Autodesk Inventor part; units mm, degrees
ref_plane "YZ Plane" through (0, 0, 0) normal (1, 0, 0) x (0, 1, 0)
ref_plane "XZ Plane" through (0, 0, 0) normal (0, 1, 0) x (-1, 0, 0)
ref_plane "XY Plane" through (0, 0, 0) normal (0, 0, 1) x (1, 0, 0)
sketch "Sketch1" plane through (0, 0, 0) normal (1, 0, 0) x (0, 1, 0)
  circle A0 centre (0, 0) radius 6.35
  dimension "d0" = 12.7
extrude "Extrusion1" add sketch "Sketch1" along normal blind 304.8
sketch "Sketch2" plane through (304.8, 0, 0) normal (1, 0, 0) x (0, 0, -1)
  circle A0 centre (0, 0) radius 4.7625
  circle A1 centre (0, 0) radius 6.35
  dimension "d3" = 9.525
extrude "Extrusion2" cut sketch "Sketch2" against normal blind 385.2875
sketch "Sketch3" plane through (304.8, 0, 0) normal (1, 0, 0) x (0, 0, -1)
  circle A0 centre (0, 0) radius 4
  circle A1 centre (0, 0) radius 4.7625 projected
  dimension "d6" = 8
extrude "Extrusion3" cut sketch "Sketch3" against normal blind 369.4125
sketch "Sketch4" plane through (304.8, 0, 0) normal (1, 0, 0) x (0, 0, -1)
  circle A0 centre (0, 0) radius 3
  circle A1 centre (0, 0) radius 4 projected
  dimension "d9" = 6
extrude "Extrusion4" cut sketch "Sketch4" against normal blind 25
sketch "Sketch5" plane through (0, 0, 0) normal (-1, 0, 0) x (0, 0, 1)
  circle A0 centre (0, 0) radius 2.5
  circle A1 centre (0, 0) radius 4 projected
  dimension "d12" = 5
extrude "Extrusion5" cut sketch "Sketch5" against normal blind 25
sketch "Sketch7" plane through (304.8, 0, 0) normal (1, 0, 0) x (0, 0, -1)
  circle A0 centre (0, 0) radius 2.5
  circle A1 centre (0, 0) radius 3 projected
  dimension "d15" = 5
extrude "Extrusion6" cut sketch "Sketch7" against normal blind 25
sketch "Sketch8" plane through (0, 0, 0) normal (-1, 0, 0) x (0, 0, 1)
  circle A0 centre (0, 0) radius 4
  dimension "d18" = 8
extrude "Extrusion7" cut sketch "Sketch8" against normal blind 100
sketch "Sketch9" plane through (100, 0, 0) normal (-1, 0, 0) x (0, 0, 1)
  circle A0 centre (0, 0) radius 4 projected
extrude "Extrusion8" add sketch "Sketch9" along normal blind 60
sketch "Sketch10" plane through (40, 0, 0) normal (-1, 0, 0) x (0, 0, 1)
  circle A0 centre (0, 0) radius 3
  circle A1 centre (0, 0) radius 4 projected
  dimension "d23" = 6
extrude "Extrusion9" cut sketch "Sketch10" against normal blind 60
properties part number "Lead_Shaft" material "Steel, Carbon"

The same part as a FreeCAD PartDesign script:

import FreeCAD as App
import Part
import Sketcher

doc = App.newDocument("Part")
body = doc.addObject("PartDesign::Body", "Body")

# Sketch on YZ plane
sketch1 = body.newObject("Sketcher::SketchObject", "Sketch")
sketch1.AttachmentSupport = (doc.getObject("YZ_Plane"), [""])
sketch1.MapMode = "FlatFace"
sketch1.addGeometry(Part.Circle(App.Vector(0, 0, 0), App.Vector(0, 0, 1), 6), False)
sketch1.addConstraint(Sketcher.Constraint("Coincident", 0, 3, -1, 1))
sketch1.addConstraint(Sketcher.Constraint("Diameter", 0, 12.7))
pad1 = body.newObject("PartDesign::Pad", "Pad")
pad1.Profile = sketch1
pad1.Length = 304.8

# Sketch on YZ plane
sketch2 = body.newObject("Sketcher::SketchObject", "Sketch001")
sketch2.AttachmentSupport = (doc.getObject("YZ_Plane"), [""])
sketch2.MapMode = "FlatFace"
sketch2.AttachmentOffset = App.Placement(App.Vector(0, 0, 304.8), App.Rotation())
sketch2.addGeometry(Part.Circle(App.Vector(0, 0, 0), App.Vector(0, 0, 1), 6.3), False)
sketch2.addGeometry(Part.Circle(App.Vector(0, 0, 0), App.Vector(0, 0, 1), 4.8), False)
sketch2.addConstraint(Sketcher.Constraint("Coincident", 0, 3, -1, 1))
sketch2.addConstraint(Sketcher.Constraint("Coincident", 1, 3, -1, 1))
sketch2.addConstraint(Sketcher.Constraint("Diameter", 1, 9.525))
sketch2.addConstraint(Sketcher.Constraint("Diameter", 0, 12.7))
pocket1 = body.newObject("PartDesign::Pocket", "Pocket")
pocket1.Profile = sketch2
pocket1.Length = 385.2875

# Sketch on YZ plane
sketch3 = body.newObject("Sketcher::SketchObject", "Sketch002")
sketch3.AttachmentSupport = (doc.getObject("YZ_Plane"), [""])
sketch3.MapMode = "FlatFace"
sketch3.AttachmentOffset = App.Placement(App.Vector(0, 0, 304.8), App.Rotation())
sketch3.addGeometry(Part.Circle(App.Vector(0, 0, 0), App.Vector(0, 0, 1), 4.8), False)
sketch3.addGeometry(Part.Circle(App.Vector(0, 0, 0), App.Vector(0, 0, 1), 4), False)
sketch3.addConstraint(Sketcher.Constraint("Coincident", 0, 3, -1, 1))
sketch3.addConstraint(Sketcher.Constraint("Coincident", 1, 3, -1, 1))
sketch3.addConstraint(Sketcher.Constraint("Diameter", 1, 8.0))
sketch3.addConstraint(Sketcher.Constraint("Diameter", 0, 9.525))
pocket2 = body.newObject("PartDesign::Pocket", "Pocket001")
pocket2.Profile = sketch3
pocket2.Length = 369.4125

# Sketch on YZ plane
sketch4 = body.newObject("Sketcher::SketchObject", "Sketch003")
sketch4.AttachmentSupport = (doc.getObject("YZ_Plane"), [""])
sketch4.MapMode = "FlatFace"
sketch4.AttachmentOffset = App.Placement(App.Vector(0, 0, 304.8), App.Rotation())
sketch4.addGeometry(Part.Circle(App.Vector(0, 0, 0), App.Vector(0, 0, 1), 4), False)
sketch4.addGeometry(Part.Circle(App.Vector(0, 0, 0), App.Vector(0, 0, 1), 3), False)
sketch4.addConstraint(Sketcher.Constraint("Coincident", 0, 3, -1, 1))
sketch4.addConstraint(Sketcher.Constraint("Coincident", 1, 3, -1, 1))
sketch4.addConstraint(Sketcher.Constraint("Diameter", 1, 6.0))
sketch4.addConstraint(Sketcher.Constraint("Diameter", 0, 8.0))
pocket3 = body.newObject("PartDesign::Pocket", "Pocket002")
pocket3.Profile = sketch4
pocket3.Length = 25

# Sketch on YZ plane
sketch5 = body.newObject("Sketcher::SketchObject", "Sketch004")
sketch5.AttachmentSupport = (doc.getObject("YZ_Plane"), [""])
sketch5.MapMode = "FlatFace"
sketch5.addGeometry(Part.Circle(App.Vector(0, 0, 0), App.Vector(0, 0, 1), 4), False)
sketch5.addGeometry(Part.Circle(App.Vector(0, 0, 0), App.Vector(0, 0, 1), 2.5), False)
sketch5.addConstraint(Sketcher.Constraint("Coincident", 0, 3, -1, 1))
sketch5.addConstraint(Sketcher.Constraint("Coincident", 1, 3, -1, 1))
sketch5.addConstraint(Sketcher.Constraint("Diameter", 1, 5.0))
sketch5.addConstraint(Sketcher.Constraint("Diameter", 0, 8.0))
pocket4 = body.newObject("PartDesign::Pocket", "Pocket003")
pocket4.Profile = sketch5
pocket4.Length = 25
pocket4.Reversed = True

# Sketch on YZ plane
sketch6 = body.newObject("Sketcher::SketchObject", "Sketch005")
sketch6.AttachmentSupport = (doc.getObject("YZ_Plane"), [""])
sketch6.MapMode = "FlatFace"
sketch6.AttachmentOffset = App.Placement(App.Vector(0, 0, 304.8), App.Rotation())
sketch6.addGeometry(Part.Circle(App.Vector(0, 0, 0), App.Vector(0, 0, 1), 3), False)
sketch6.addGeometry(Part.Circle(App.Vector(0, 0, 0), App.Vector(0, 0, 1), 2.5), False)
sketch6.addConstraint(Sketcher.Constraint("Coincident", 0, 3, -1, 1))
sketch6.addConstraint(Sketcher.Constraint("Coincident", 1, 3, -1, 1))
sketch6.addConstraint(Sketcher.Constraint("Diameter", 1, 5.0))
sketch6.addConstraint(Sketcher.Constraint("Diameter", 0, 6.0))
pocket5 = body.newObject("PartDesign::Pocket", "Pocket004")
pocket5.Profile = sketch6
pocket5.Length = 25

# Sketch on YZ plane
sketch7 = body.newObject("Sketcher::SketchObject", "Sketch006")
sketch7.AttachmentSupport = (doc.getObject("YZ_Plane"), [""])
sketch7.MapMode = "FlatFace"
sketch7.addGeometry(Part.Circle(App.Vector(0, 0, 0), App.Vector(0, 0, 1), 4), False)
sketch7.addConstraint(Sketcher.Constraint("Coincident", 0, 3, -1, 1))
sketch7.addConstraint(Sketcher.Constraint("Diameter", 0, 8.0))
pocket6 = body.newObject("PartDesign::Pocket", "Pocket005")
pocket6.Profile = sketch7
pocket6.Length = 100
pocket6.Reversed = True

# Sketch on YZ plane
sketch8 = body.newObject("Sketcher::SketchObject", "Sketch007")
sketch8.AttachmentSupport = (doc.getObject("YZ_Plane"), [""])
sketch8.MapMode = "FlatFace"
sketch8.AttachmentOffset = App.Placement(App.Vector(0, 0, 100), App.Rotation())
sketch8.addGeometry(Part.Circle(App.Vector(0, 0, 0), App.Vector(0, 0, 1), 4), False)
sketch8.addConstraint(Sketcher.Constraint("Coincident", 0, 3, -1, 1))
sketch8.addConstraint(Sketcher.Constraint("Diameter", 0, 8.0))
pad2 = body.newObject("PartDesign::Pad", "Pad001")
pad2.Profile = sketch8
pad2.Length = 60
pad2.Reversed = True

# Sketch on YZ plane
sketch9 = body.newObject("Sketcher::SketchObject", "Sketch008")
sketch9.AttachmentSupport = (doc.getObject("YZ_Plane"), [""])
sketch9.MapMode = "FlatFace"
sketch9.AttachmentOffset = App.Placement(App.Vector(0, 0, 40), App.Rotation())
sketch9.addGeometry(Part.Circle(App.Vector(0, 0, 0), App.Vector(0, 0, 1), 4), False)
sketch9.addGeometry(Part.Circle(App.Vector(0, 0, 0), App.Vector(0, 0, 1), 3), False)
sketch9.addConstraint(Sketcher.Constraint("Coincident", 0, 3, -1, 1))
sketch9.addConstraint(Sketcher.Constraint("Coincident", 1, 3, -1, 1))
sketch9.addConstraint(Sketcher.Constraint("Diameter", 1, 6.0))
sketch9.addConstraint(Sketcher.Constraint("Diameter", 0, 8.0))
pocket7 = body.newObject("PartDesign::Pocket", "Pocket006")
pocket7.Profile = sketch9
pocket7.Length = 60
pocket7.Reversed = True

doc.recompute()
